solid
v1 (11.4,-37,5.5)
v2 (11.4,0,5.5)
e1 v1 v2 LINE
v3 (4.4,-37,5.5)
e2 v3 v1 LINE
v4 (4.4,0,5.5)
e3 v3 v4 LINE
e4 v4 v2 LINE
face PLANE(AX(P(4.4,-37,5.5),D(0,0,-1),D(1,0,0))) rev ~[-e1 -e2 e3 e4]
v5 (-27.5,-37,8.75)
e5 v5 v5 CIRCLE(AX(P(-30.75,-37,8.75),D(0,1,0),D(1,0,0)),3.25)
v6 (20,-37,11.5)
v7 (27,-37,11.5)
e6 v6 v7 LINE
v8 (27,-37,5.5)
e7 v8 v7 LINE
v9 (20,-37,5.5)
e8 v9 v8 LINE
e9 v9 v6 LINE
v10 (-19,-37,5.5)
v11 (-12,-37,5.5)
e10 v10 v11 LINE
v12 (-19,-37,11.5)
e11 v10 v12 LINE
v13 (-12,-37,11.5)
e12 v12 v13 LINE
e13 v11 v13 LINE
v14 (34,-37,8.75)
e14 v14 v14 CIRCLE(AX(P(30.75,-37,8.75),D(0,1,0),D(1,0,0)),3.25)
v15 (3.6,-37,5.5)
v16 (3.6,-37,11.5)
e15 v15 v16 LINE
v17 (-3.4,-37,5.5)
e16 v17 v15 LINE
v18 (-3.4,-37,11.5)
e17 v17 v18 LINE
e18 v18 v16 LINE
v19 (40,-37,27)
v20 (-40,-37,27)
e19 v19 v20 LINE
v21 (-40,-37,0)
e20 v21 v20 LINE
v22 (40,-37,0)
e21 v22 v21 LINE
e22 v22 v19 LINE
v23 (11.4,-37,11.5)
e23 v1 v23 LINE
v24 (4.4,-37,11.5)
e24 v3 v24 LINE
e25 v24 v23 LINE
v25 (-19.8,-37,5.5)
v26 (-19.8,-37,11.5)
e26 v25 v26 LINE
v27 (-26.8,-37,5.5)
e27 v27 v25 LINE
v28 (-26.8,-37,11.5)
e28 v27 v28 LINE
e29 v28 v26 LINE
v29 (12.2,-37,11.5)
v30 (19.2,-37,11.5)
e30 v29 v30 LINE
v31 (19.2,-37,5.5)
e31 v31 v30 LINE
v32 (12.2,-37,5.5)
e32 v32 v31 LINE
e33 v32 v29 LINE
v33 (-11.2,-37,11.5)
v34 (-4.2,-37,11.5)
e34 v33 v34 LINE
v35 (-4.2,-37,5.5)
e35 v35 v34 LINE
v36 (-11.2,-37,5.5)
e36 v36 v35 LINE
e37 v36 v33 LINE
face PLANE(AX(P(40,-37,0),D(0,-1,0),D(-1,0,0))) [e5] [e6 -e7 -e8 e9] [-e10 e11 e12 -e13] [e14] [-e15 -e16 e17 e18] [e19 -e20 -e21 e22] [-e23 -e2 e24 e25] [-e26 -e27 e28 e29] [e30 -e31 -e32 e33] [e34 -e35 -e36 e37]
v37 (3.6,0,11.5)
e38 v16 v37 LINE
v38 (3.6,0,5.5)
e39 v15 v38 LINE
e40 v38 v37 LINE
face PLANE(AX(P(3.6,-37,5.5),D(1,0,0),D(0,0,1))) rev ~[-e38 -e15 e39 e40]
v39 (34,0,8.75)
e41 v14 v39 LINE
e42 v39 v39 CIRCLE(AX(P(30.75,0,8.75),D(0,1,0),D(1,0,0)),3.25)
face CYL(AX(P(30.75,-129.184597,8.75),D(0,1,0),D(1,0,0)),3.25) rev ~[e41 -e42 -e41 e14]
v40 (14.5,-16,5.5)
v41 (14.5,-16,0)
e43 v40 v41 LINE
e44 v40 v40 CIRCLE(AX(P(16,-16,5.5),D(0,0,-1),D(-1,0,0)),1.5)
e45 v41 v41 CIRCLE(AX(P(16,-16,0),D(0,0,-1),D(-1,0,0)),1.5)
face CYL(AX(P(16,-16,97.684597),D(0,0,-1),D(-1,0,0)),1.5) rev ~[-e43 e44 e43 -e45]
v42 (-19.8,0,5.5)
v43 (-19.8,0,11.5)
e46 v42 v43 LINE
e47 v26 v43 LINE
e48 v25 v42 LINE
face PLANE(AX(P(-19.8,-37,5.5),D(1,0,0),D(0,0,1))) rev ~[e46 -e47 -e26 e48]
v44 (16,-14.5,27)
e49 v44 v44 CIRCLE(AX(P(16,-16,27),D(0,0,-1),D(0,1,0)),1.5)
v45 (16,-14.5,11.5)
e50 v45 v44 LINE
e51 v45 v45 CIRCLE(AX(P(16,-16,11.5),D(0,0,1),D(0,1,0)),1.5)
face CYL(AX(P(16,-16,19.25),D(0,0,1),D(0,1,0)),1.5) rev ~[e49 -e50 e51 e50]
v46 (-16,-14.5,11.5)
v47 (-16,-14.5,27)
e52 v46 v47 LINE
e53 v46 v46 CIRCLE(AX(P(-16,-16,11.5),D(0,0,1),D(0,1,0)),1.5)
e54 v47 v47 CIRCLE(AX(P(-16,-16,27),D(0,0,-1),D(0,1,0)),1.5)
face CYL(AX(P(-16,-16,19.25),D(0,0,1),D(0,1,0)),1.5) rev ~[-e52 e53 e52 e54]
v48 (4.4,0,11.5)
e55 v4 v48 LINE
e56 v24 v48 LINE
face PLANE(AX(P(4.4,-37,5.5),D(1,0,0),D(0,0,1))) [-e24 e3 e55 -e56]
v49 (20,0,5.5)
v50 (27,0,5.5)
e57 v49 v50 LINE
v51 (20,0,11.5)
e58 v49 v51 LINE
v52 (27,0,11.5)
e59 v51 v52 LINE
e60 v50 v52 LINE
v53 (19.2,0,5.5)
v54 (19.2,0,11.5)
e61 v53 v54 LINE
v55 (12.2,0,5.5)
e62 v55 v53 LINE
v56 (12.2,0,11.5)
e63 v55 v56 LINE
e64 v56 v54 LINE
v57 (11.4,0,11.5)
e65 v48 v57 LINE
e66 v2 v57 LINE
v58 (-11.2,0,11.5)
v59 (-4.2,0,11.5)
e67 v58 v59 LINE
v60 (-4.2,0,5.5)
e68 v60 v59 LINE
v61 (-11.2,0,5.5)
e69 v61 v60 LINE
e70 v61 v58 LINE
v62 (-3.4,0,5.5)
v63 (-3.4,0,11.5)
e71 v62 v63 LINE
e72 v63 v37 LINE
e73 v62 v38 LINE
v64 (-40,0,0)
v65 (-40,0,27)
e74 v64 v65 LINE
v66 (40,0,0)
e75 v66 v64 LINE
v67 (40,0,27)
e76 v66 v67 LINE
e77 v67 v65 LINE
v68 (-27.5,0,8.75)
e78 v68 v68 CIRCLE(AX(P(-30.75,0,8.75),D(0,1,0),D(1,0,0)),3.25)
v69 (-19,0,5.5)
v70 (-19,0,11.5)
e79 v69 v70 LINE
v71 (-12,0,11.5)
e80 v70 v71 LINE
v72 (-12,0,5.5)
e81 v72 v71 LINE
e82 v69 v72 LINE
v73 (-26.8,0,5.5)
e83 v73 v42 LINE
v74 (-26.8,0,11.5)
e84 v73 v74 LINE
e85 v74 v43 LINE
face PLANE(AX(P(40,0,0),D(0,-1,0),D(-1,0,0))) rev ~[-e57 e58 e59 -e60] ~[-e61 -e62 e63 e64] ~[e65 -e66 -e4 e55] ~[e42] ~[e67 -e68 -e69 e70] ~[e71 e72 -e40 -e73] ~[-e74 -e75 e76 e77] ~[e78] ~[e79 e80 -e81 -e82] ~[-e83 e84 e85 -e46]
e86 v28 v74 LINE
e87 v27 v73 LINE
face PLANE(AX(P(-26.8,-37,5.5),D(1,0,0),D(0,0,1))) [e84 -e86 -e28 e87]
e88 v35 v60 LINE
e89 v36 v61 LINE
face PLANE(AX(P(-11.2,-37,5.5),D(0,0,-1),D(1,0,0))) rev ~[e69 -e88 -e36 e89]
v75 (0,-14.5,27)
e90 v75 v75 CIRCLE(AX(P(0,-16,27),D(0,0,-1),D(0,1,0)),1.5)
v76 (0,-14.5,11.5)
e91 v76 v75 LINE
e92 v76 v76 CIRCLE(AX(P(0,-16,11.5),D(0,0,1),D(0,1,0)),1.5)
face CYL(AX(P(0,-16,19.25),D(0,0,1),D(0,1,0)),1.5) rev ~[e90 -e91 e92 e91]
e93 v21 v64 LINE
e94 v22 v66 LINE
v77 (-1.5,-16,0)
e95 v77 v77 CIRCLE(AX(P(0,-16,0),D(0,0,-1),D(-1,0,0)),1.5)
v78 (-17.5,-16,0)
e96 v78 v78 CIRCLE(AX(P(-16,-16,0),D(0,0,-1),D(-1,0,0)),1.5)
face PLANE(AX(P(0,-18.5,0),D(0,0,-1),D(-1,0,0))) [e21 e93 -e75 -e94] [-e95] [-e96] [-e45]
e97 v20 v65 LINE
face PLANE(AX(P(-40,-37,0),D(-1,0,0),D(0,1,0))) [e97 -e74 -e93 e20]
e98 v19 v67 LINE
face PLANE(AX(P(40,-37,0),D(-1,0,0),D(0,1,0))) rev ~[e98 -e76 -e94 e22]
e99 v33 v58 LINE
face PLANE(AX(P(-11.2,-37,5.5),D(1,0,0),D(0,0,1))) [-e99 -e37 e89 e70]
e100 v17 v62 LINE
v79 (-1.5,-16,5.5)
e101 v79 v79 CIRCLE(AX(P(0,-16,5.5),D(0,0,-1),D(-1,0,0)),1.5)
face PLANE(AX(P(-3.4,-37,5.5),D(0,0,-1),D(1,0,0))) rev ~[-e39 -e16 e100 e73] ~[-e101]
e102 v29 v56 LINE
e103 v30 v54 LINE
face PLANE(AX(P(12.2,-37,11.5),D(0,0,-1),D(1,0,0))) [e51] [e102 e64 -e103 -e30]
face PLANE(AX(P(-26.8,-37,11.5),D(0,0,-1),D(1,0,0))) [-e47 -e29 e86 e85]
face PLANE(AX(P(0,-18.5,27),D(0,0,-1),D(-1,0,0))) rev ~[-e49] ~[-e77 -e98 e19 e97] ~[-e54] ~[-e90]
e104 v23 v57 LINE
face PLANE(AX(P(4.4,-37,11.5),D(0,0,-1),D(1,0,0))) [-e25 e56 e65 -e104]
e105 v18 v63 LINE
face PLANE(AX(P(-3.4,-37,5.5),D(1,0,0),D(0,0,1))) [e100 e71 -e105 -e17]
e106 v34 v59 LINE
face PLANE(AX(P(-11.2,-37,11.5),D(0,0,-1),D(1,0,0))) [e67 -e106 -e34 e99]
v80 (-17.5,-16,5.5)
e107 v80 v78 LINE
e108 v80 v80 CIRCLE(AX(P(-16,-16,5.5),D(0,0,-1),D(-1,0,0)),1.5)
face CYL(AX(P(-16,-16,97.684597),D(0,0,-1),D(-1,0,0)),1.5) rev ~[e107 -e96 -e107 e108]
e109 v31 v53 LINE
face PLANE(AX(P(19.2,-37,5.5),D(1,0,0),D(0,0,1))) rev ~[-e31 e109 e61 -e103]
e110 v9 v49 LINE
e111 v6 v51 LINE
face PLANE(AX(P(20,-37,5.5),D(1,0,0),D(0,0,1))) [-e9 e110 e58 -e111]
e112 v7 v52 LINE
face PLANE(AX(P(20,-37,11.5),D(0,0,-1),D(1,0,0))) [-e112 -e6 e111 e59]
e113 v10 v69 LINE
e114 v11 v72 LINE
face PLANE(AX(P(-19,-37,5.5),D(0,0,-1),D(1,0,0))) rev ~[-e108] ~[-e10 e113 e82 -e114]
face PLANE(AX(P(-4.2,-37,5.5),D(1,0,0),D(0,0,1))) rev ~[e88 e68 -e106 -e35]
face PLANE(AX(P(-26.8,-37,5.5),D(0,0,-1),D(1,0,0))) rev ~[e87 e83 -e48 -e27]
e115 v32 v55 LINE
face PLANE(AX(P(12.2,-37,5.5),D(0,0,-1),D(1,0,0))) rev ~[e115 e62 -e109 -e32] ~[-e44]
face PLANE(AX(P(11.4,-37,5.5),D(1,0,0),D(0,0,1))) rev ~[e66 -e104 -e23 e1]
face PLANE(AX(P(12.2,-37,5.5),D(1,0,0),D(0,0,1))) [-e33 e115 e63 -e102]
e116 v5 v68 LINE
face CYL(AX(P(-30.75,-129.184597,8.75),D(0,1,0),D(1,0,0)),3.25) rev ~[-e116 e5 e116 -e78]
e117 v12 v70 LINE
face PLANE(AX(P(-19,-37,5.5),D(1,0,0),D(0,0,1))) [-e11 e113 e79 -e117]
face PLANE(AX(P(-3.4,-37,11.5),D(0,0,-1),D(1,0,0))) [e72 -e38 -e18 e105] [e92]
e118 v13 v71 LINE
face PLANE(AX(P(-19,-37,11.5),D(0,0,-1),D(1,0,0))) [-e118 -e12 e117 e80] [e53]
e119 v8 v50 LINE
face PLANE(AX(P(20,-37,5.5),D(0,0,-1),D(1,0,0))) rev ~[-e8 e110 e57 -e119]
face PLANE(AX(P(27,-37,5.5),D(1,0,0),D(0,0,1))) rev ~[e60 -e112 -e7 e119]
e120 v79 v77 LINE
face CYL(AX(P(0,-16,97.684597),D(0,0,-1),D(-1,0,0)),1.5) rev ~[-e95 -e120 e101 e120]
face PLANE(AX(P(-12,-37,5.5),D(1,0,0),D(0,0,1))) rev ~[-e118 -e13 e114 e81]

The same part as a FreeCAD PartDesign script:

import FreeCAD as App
import Part
import Sketcher


def add_polygon(sketch, points):
    """Adds a closed chain of lines whose ends are joined by coincident constraints."""
    first, n = sketch.GeometryCount, len(points)
    for a, b in zip(points, points[1:] + points[:1]):
        sketch.addGeometry(Part.LineSegment(App.Vector(*a, 0), App.Vector(*b, 0)), False)
    for i in range(n):
        sketch.addConstraint(Sketcher.Constraint("Coincident", first + i, 2, first + (i + 1) % n, 1))

doc = App.newDocument("Part")
body = doc.addObject("PartDesign::Body", "Body")

sketch1 = body.newObject("Sketcher::SketchObject", "Sketch")
sketch1.AttachmentSupport = (doc.getObject("XY_Plane"), [""])
sketch1.MapMode = "FlatFace"
add_polygon(sketch1, [(40, 0), (40, -37), (-40, -37), (-40, 0)])
sketch1.addConstraint([
    Sketcher.Constraint("Vertical", 0),
    Sketcher.Constraint("Horizontal", 1),
    Sketcher.Constraint("Vertical", 2),
    Sketcher.Constraint("Horizontal", 3),
    Sketcher.Constraint("Symmetric", 2, 2, 3, 2, -1, 1),
    Sketcher.Constraint("DistanceX", 1, 2, 1, 1, 80.0),
    Sketcher.Constraint("DistanceY", 0, 2, 0, 1, 37.0),
])
pad1 = body.newObject("PartDesign::Pad", "Pad")
pad1.Profile = sketch1
pad1.Length = 27

sketch2 = body.newObject("Sketcher::SketchObject", "Sketch001")
sketch2.AttachmentSupport = (doc.getObject("XZ_Plane"), [""])
sketch2.MapMode = "FlatFace"
sketch2.AttachmentOffset = App.Placement(App.Vector(0, 0, 37), App.Rotation())
add_polygon(sketch2, [(-26.8, 11.5), (-26.8, 5.5), (-19.8, 5.5), (-19.8, 11.5)])
sketch2.addConstraint([
    Sketcher.Constraint("Vertical", 0),
    Sketcher.Constraint("Horizontal", 1),
    Sketcher.Constraint("Vertical", 2),
    Sketcher.Constraint("Horizontal", 3),
    Sketcher.Constraint("DistanceX", 1, 1, 1, 2, 7.0),
    Sketcher.Constraint("DistanceY", 0, 2, 0, 1, 6.0),
    Sketcher.Constraint("DistanceX", 0, 2, -1, 1, 26.8),
    Sketcher.Constraint("DistanceY", -1, 1, 0, 2, 5.5),
])
pocket1 = body.newObject("PartDesign::Pocket", "Pocket")
pocket1.Profile = sketch2
pocket1.Type = "ThroughAll"
doc.recompute()

linearpattern = body.newObject("PartDesign::LinearPattern", "LinearPattern")
linearpattern.Originals = [pocket1]
linearpattern.Direction = (doc.getObject("X_Axis"), [""])
linearpattern.Mode = "offset"
linearpattern.Offset = 7.8
linearpattern.Occurrences = 7
body.Tip = linearpattern

sketch3 = body.newObject("Sketcher::SketchObject", "Sketch002")
sketch3.AttachmentSupport = (doc.getObject("YZ_Plane"), [""])
sketch3.MapMode = "FlatFace"
sketch3.AttachmentOffset = App.Placement(App.Vector(0, 0, 16), App.Rotation())
add_polygon(sketch3, [(-16, 27), (-16, 11.5), (-14.5, 11.5), (-14.5, 27)])
sketch3.addGeometry(Part.LineSegment(App.Vector(-16, 11.5, 0), App.Vector(-16, 27, 0)), True)
sketch3.addConstraint([
    Sketcher.Constraint("Vertical", 0),
    Sketcher.Constraint("Horizontal", 1),
    Sketcher.Constraint("Vertical", 2),
    Sketcher.Constraint("Horizontal", 3),
    Sketcher.Constraint("Vertical", 4),
    Sketcher.Constraint("Coincident", 4, 1, 0, 2),
    Sketcher.Constraint("Horizontal", 2, 2, 4, 2),
    Sketcher.Constraint("DistanceX", 1, 1, 1, 2, 1.5),
    Sketcher.Constraint("DistanceY", 0, 2, 0, 1, 15.5),
    Sketcher.Constraint("DistanceX", 0, 2, -1, 1, 16.0),
    Sketcher.Constraint("DistanceY", -1, 1, 2, 2, 27.0),
])
groove = body.newObject("PartDesign::Groove", "Groove")
groove.Profile = sketch3
groove.ReferenceAxis = (sketch3, ["Axis0"])
groove.Angle = 360
doc.recompute()

linearpattern2 = body.newObject("PartDesign::LinearPattern", "LinearPattern001")
linearpattern2.Originals = [groove]
linearpattern2.Direction = (doc.getObject("X_Axis"), [""])
linearpattern2.Mode = "offset"
linearpattern2.Offset = 16
linearpattern2.Occurrences = 2
linearpattern2.Reversed = True
body.Tip = linearpattern2
doc.recompute()

linearpattern3 = body.newObject("PartDesign::LinearPattern", "LinearPattern002")
linearpattern3.Originals = [groove]
linearpattern3.Direction = (doc.getObject("X_Axis"), [""])
linearpattern3.Mode = "offset"
linearpattern3.Offset = 32
linearpattern3.Occurrences = 2
linearpattern3.Reversed = True
body.Tip = linearpattern3

sketch4 = body.newObject("Sketcher::SketchObject", "Sketch003")
sketch4.AttachmentSupport = (doc.getObject("XZ_Plane"), [""])
sketch4.MapMode = "FlatFace"
sketch4.AttachmentOffset = App.Placement(App.Vector(0, 0, 37), App.Rotation())
sketch4.addGeometry([
    Part.Circle(App.Vector(-30.75, 8.75, 0), App.Vector(0, 0, 1), 3.25),
    Part.Circle(App.Vector(30.75, 8.75, 0), App.Vector(0, 0, 1), 3.25),
], False)
sketch4.addConstraint([
    Sketcher.Constraint("Equal", 0, 1),
    Sketcher.Constraint("Symmetric", 0, 3, 1, 3, -2),
    Sketcher.Constraint("Diameter", 0, 6.5),
    Sketcher.Constraint("DistanceX", 0, 3, 1, 3, 61.5),
    Sketcher.Constraint("DistanceY", -1, 1, 0, 3, 8.75),
])
doc.recompute()
hole = body.newObject("PartDesign::Hole", "Hole")
hole.Profile = sketch4
hole.ThreadType = "None"
hole.Diameter = 6.5
hole.DepthType = "ThroughAll"

sketch5 = body.newObject("Sketcher::SketchObject", "Sketch004")
sketch5.AttachmentSupport = (doc.getObject("XY_Plane"), [""])
sketch5.MapMode = "FlatFace"
sketch5.AttachmentOffset = App.Placement(App.Vector(0, 0, 5.5), App.Rotation())
sketch5.addGeometry([
    Part.Circle(App.Vector(16, -16, 0), App.Vector(0, 0, 1), 1.5),
    Part.Circle(App.Vector(0, -16, 0), App.Vector(0, 0, 1), 1.5),
    Part.Circle(App.Vector(-16, -16, 0), App.Vector(0, 0, 1), 1.5),
], False)
sketch5.addConstraint([
    Sketcher.Constraint("Equal", 0, 1),
    Sketcher.Constraint("Equal", 1, 2),
    Sketcher.Constraint("Symmetric", 0, 3, 2, 3, -2),
    Sketcher.Constraint("PointOnObject", 1, 3, -2),
    Sketcher.Constraint("Horizontal", 0, 3, 1, 3),
    Sketcher.Constraint("Diameter", 0, 3.0),
    Sketcher.Constraint("DistanceX", -1, 1, 0, 3, 16.0),
    Sketcher.Constraint("DistanceY", 0, 3, -1, 1, 16.0),
])
doc.recompute()
hole2 = body.newObject("PartDesign::Hole", "Hole001")
hole2.Profile = sketch5
hole2.ThreadType = "None"
hole2.Diameter = 3
hole2.DepthType = "ThroughAll"

doc.recompute()
